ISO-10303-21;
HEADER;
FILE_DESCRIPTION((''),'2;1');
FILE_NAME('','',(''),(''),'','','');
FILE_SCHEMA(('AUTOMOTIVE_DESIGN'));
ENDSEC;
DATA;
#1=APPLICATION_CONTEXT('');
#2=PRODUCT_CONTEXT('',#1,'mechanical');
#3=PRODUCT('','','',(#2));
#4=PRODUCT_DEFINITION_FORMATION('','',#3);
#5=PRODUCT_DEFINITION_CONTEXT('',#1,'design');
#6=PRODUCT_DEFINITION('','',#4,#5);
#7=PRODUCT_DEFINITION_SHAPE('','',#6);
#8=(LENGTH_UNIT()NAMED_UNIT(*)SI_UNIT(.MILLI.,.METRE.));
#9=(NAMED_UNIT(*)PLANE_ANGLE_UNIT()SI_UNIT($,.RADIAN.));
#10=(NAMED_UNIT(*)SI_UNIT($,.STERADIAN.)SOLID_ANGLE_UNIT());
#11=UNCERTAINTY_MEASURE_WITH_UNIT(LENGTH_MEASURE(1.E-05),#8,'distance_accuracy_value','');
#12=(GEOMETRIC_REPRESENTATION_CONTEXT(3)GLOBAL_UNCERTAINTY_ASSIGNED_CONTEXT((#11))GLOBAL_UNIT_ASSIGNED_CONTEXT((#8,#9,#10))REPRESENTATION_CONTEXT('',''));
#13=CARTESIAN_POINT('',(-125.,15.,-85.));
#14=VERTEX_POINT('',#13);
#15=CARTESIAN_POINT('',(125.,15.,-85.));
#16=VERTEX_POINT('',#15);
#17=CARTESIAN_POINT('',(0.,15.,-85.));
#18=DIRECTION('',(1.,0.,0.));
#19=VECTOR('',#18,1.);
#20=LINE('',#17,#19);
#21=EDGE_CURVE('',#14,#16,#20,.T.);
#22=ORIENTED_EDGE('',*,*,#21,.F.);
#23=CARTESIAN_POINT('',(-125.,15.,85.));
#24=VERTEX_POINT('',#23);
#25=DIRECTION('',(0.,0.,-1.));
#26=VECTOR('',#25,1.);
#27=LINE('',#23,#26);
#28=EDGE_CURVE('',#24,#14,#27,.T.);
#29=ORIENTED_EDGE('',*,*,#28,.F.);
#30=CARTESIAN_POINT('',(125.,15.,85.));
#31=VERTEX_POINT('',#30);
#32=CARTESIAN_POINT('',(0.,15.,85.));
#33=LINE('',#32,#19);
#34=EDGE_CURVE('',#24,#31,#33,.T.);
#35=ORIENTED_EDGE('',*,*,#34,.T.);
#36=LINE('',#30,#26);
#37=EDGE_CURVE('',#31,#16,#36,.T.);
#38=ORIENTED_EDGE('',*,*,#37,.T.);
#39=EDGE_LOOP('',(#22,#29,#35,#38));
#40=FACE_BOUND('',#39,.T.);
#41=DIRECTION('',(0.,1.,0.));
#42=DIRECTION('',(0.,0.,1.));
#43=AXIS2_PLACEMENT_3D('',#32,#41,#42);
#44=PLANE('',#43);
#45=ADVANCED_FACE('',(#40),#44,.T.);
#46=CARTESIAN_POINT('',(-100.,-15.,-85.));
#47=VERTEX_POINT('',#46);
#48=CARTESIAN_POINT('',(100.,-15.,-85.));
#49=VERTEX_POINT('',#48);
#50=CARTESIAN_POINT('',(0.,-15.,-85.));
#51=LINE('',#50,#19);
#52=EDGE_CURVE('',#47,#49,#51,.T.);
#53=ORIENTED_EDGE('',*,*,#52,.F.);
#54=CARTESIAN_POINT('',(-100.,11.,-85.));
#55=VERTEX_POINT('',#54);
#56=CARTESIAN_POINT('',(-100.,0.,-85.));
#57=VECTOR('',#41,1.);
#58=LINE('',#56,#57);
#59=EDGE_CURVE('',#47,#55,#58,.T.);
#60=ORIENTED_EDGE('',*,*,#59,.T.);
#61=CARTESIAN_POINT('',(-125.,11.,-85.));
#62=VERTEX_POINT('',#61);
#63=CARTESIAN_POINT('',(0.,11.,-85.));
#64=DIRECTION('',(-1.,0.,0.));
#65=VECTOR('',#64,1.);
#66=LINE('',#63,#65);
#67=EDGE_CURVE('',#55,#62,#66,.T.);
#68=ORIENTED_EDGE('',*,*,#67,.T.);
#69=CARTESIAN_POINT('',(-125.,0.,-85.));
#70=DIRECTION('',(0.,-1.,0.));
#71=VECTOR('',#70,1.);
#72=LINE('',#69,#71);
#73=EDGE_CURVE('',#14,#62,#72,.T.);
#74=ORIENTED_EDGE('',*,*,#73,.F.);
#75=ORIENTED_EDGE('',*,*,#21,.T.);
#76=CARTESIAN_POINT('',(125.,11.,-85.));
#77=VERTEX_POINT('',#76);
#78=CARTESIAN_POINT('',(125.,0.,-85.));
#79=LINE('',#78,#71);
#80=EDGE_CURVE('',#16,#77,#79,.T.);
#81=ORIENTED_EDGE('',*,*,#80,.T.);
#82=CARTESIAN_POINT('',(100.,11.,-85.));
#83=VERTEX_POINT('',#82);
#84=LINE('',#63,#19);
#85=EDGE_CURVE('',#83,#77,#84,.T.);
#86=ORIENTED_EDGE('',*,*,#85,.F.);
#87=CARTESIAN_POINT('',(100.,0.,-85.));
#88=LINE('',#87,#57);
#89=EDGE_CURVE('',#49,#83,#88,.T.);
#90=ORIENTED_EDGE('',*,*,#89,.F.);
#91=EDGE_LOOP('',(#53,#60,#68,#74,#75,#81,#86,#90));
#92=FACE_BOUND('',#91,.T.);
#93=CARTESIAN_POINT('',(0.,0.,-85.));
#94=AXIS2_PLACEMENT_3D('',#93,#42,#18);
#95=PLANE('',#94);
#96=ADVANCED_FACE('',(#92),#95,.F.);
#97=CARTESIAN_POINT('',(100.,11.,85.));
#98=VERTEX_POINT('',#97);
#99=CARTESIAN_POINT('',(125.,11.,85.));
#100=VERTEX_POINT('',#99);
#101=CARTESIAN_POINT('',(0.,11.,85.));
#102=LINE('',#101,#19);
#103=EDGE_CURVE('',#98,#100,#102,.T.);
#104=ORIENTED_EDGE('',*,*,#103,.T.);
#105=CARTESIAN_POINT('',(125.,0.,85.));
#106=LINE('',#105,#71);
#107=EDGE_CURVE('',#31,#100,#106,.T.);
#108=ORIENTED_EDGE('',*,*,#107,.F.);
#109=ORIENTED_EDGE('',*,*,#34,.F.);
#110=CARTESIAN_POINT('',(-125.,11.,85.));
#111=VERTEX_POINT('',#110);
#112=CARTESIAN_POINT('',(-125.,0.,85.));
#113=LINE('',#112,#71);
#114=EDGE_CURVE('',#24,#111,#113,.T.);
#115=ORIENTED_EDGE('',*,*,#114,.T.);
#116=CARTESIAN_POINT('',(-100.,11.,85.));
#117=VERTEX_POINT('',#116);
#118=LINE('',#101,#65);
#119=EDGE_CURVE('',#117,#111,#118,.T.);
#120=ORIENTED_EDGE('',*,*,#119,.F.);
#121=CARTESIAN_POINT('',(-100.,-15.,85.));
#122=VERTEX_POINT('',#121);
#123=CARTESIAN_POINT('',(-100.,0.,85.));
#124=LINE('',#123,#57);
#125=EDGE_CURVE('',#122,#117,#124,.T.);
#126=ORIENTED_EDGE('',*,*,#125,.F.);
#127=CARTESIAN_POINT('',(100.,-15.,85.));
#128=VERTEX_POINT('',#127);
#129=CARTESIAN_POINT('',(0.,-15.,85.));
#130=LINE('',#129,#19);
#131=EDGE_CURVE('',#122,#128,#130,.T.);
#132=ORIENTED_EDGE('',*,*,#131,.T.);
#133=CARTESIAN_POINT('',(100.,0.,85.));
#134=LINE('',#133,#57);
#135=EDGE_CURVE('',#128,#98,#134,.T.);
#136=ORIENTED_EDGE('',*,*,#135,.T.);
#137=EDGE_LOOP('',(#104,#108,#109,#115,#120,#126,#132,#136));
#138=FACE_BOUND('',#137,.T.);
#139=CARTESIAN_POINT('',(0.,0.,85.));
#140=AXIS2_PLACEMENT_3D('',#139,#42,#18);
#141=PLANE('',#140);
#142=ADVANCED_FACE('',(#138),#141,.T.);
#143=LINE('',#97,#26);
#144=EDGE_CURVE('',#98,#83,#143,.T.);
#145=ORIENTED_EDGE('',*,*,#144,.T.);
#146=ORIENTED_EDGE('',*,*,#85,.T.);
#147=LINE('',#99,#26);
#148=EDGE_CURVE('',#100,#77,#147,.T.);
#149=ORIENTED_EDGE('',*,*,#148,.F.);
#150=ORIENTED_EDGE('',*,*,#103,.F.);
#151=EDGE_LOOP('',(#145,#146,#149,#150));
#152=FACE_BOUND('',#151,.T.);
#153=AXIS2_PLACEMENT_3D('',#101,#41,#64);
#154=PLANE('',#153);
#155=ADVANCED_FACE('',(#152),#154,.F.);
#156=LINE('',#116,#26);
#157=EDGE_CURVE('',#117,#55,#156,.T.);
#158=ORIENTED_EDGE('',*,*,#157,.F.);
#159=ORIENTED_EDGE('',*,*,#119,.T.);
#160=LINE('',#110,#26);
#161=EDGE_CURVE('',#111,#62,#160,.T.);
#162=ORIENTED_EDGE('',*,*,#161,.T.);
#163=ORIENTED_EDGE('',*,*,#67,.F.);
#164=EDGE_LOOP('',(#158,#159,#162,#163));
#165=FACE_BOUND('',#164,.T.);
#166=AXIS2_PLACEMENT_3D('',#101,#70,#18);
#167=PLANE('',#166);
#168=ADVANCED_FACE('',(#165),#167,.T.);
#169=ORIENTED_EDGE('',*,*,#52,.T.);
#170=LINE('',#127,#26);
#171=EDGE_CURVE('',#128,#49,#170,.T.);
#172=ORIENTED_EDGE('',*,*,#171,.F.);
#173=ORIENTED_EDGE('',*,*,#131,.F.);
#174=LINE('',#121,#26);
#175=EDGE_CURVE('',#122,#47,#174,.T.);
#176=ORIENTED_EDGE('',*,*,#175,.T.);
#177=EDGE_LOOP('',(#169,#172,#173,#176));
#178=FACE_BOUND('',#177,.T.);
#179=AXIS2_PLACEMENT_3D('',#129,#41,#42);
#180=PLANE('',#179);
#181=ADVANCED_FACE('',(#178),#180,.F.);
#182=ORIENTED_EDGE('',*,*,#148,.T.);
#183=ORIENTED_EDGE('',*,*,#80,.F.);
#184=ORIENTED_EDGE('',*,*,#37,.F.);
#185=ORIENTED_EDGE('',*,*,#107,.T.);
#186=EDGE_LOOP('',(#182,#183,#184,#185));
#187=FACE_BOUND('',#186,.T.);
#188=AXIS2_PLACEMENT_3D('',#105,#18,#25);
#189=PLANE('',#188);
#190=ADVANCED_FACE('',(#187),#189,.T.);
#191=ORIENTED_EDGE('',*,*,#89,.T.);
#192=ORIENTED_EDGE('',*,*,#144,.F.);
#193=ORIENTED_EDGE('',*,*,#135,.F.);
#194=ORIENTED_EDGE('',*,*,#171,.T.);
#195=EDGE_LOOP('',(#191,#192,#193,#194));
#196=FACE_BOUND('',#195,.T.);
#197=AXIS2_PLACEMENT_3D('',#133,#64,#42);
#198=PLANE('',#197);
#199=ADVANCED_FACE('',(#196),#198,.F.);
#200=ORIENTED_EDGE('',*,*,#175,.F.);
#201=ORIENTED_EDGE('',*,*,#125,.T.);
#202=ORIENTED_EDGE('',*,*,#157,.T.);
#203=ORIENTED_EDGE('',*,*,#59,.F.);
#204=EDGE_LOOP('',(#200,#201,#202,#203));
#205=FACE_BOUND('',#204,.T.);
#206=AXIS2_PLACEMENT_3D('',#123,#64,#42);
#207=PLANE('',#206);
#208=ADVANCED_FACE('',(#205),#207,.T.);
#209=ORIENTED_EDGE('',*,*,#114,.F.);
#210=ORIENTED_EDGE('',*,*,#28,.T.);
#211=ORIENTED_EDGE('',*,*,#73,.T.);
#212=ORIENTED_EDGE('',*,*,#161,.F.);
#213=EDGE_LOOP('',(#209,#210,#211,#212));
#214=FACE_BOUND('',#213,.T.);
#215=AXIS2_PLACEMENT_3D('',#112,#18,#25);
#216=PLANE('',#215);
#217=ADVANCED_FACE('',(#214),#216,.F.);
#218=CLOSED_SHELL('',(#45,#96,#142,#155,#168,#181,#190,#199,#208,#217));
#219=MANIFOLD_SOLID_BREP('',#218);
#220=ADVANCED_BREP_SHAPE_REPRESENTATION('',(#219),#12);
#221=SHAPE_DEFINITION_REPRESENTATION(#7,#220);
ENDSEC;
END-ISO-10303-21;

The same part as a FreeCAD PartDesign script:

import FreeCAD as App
import Part
import Sketcher
Q = App.Units.Quantity

doc = App.newDocument("Part")
body = doc.addObject("PartDesign::Body", "Body")

# Sketch on XY plane
sketch1 = body.newObject("Sketcher::SketchObject", "Sketch")
sketch1.AttachmentSupport = (doc.getObject("XY_Plane"), [""])
sketch1.MapMode = "FlatFace"
sketch1.addGeometry(Part.LineSegment(App.Vector(-100, 11, 0), App.Vector(-100, -15, 0)), False)
sketch1.addGeometry(Part.LineSegment(App.Vector(-100, -15, 0), App.Vector(100, -15, 0)), False)
sketch1.addGeometry(Part.LineSegment(App.Vector(100, -15, 0), App.Vector(100, 11, 0)), False)
sketch1.addGeometry(Part.LineSegment(App.Vector(100, 11, 0), App.Vector(125, 11, 0)), False)
sketch1.addGeometry(Part.LineSegment(App.Vector(125, 11, 0), App.Vector(125, 15, 0)), False)
sketch1.addGeometry(Part.LineSegment(App.Vector(125, 15, 0), App.Vector(-125, 15, 0)), False)
sketch1.addGeometry(Part.LineSegment(App.Vector(-125, 15, 0), App.Vector(-125, 11, 0)), False)
sketch1.addGeometry(Part.LineSegment(App.Vector(-125, 11, 0), App.Vector(-100, 11, 0)), False)
sketch1.addConstraint(Sketcher.Constraint("Coincident", 0, 2, 1, 1))
sketch1.addConstraint(Sketcher.Constraint("Coincident", 1, 2, 2, 1))
sketch1.addConstraint(Sketcher.Constraint("Coincident", 2, 2, 3, 1))
sketch1.addConstraint(Sketcher.Constraint("Coincident", 3, 2, 4, 1))
sketch1.addConstraint(Sketcher.Constraint("Coincident", 4, 2, 5, 1))
sketch1.addConstraint(Sketcher.Constraint("Coincident", 5, 2, 6, 1))
sketch1.addConstraint(Sketcher.Constraint("Coincident", 6, 2, 7, 1))
sketch1.addConstraint(Sketcher.Constraint("Coincident", 7, 2, 0, 1))
sketch1.addConstraint(Sketcher.Constraint("Vertical", 0))
sketch1.addConstraint(Sketcher.Constraint("Horizontal", 1))
sketch1.addConstraint(Sketcher.Constraint("Vertical", 2))
sketch1.addConstraint(Sketcher.Constraint("Horizontal", 3))
sketch1.addConstraint(Sketcher.Constraint("Vertical", 4))
sketch1.addConstraint(Sketcher.Constraint("Horizontal", 5))
sketch1.addConstraint(Sketcher.Constraint("Vertical", 6))
sketch1.addConstraint(Sketcher.Constraint("Horizontal", 7))
sketch1.addConstraint(Sketcher.Constraint("Symmetric", 3, 2, 6, 2, -2))
sketch1.addConstraint(Sketcher.Constraint("Equal", 3, 7))
sketch1.addConstraint(Sketcher.Constraint("DistanceX", 1, 1, 1, 2, Q("200 mm")))
sketch1.addConstraint(Sketcher.Constraint("DistanceX", 3, 1, 3, 2, Q("25 mm")))
sketch1.addConstraint(Sketcher.Constraint("DistanceY", 0, 2, 0, 1, Q("26 mm")))
sketch1.addConstraint(Sketcher.Constraint("DistanceY", 4, 1, 4, 2, Q("4 mm")))
sketch1.addConstraint(Sketcher.Constraint("DistanceY", 0, 2, -1, 1, Q("15 mm")))
pad1 = body.newObject("PartDesign::Pad", "Pad")
pad1.Profile = sketch1
pad1.Length = 170
pad1.Midplane = True

doc.recompute()
